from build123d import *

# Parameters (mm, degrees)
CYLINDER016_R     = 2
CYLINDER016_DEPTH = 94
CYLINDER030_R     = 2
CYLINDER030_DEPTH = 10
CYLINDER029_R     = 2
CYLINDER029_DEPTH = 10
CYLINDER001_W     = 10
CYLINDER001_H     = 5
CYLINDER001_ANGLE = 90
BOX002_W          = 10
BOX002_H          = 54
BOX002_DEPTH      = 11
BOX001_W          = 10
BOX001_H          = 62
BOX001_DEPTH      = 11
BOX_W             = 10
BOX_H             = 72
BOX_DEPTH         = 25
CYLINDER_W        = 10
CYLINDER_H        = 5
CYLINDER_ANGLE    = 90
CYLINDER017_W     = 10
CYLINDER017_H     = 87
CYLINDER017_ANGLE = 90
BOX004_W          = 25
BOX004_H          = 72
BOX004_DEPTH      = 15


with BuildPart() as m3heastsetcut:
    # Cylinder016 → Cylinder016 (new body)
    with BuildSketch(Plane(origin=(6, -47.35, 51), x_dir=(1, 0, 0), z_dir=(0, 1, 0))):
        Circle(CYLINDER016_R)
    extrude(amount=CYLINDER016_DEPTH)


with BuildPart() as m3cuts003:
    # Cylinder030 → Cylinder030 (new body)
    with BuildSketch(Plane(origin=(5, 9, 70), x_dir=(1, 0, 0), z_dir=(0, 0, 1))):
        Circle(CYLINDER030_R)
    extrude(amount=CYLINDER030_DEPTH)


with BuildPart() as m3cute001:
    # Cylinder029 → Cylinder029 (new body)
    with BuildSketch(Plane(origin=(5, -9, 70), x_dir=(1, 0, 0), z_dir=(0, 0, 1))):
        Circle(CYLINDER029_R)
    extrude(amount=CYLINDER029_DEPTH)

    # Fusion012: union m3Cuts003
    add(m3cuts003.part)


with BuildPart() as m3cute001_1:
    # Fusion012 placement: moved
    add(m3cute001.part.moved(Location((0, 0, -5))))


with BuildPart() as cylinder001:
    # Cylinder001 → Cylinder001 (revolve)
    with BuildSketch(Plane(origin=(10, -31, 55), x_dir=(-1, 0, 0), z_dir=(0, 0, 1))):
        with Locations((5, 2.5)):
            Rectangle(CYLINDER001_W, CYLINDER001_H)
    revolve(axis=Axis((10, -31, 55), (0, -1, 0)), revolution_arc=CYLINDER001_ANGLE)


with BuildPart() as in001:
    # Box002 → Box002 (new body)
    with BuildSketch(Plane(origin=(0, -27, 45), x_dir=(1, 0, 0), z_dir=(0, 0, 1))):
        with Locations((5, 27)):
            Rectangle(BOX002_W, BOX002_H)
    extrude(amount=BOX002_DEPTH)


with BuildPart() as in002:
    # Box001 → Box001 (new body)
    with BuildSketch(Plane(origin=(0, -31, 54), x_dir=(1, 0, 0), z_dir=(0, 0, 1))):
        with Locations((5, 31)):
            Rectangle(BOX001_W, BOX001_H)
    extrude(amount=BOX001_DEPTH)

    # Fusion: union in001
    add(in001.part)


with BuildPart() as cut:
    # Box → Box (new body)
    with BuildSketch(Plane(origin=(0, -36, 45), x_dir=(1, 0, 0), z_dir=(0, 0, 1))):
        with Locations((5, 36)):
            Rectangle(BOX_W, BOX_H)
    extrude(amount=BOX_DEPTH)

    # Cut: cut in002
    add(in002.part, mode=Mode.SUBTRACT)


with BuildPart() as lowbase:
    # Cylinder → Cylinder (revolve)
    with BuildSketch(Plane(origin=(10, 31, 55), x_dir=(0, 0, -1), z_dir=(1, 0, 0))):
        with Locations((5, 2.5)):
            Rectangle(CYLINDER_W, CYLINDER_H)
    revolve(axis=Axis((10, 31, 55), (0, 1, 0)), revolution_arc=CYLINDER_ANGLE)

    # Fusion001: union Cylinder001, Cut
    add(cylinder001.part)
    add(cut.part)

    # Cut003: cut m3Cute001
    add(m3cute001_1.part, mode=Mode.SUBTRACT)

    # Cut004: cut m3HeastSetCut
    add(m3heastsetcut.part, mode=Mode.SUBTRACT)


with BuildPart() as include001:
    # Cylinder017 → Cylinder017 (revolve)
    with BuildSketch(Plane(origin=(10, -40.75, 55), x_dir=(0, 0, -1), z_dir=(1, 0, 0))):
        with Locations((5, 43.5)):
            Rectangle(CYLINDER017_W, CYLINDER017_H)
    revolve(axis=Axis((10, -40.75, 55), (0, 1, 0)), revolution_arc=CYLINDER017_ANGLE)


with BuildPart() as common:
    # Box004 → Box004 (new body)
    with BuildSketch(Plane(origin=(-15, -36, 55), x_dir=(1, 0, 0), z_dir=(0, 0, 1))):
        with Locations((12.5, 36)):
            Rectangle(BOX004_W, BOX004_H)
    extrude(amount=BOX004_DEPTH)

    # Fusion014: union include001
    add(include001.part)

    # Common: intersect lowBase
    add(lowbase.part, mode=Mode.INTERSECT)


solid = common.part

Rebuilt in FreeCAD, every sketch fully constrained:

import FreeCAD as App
import Part
import Sketcher

V = App.Vector

doc = App.newDocument("Part")
params = doc.addObject("Spreadsheet::Sheet", "Params")
for row, (alias, value) in enumerate([
    ("sketch1_diameter", "4 mm"),
    ("pad1_length", "94 mm"),
    ("sketch2_diameter", "4 mm"),
    ("pad2_length", "10 mm"),
    ("sketch3_diameter", "4 mm"),
    ("pad3_length", "10 mm"),
    ("sketch4_width", "10 mm"),
    ("sketch4_height", "5 mm"),
    ("revolution_angle", "90 deg"),
    ("sketch5_width", "10 mm"),
    ("sketch5_height", "54 mm"),
    ("pad4_length", "11 mm"),
    ("sketch6_width", "10 mm"),
    ("sketch6_height", "62 mm"),
    ("pad5_length", "11 mm"),
    ("sketch7_width", "10 mm"),
    ("sketch7_height", "72 mm"),
    ("pad6_length", "25 mm"),
    ("sketch8_width", "5 mm"),
    ("sketch8_height", "10 mm"),
    ("revolution2_angle", "90 deg"),
    ("sketch9_width", "87 mm"),
    ("sketch9_height", "10 mm"),
    ("revolution3_angle", "90 deg"),
    ("sketch10_width", "25 mm"),
    ("sketch10_height", "72 mm"),
    ("pad7_length", "15 mm"),
], start=1):
    params.set(f"A{row}", alias)
    params.set(f"B{row}", "=" + value)
    params.setAlias(f"B{row}", alias)

body = doc.addObject("PartDesign::Body", "Body")

sketch1 = body.newObject("Sketcher::SketchObject", "Sketch")
sketch1.AttachmentSupport = (doc.getObject("XZ_Plane"), [""])
sketch1.MapMode = "FlatFace"
sketch1.AttachmentOffset = App.Placement(V(0, 0, 47.35), App.Rotation())
sketch1.addGeometry(Part.Circle(V(6, 51, 0), V(0, 0, 1), 2), False)
sketch1.addConstraint(Sketcher.Constraint("Diameter", 0, 4.0))
sketch1.addConstraint(Sketcher.Constraint("DistanceX", -1, 1, 0, 3, 6.0))
sketch1.addConstraint(Sketcher.Constraint("DistanceY", -1, 1, 0, 3, 51.0))
sketch1.setExpression("Constraints[0]", "Params.sketch1_diameter")
pad1 = body.newObject("PartDesign::Pad", "Pad")
pad1.Profile = sketch1
pad1.setExpression("Length", "Params.pad1_length")
pad1.Reversed = True
body2 = doc.addObject("PartDesign::Body", "Body001")

sketch2 = body2.newObject("Sketcher::SketchObject", "Sketch001")
sketch2.AttachmentSupport = (doc.getObject("XY_Plane001"), [""])
sketch2.MapMode = "FlatFace"
sketch2.AttachmentOffset = App.Placement(V(0, 0, 70), App.Rotation())
sketch2.addGeometry(Part.Circle(V(5, 9, 0), V(0, 0, 1), 2), False)
sketch2.addConstraint(Sketcher.Constraint("Diameter", 0, 4.0))
sketch2.addConstraint(Sketcher.Constraint("DistanceX", -1, 1, 0, 3, 5.0))
sketch2.addConstraint(Sketcher.Constraint("DistanceY", -1, 1, 0, 3, 9.0))
sketch2.setExpression("Constraints[0]", "Params.sketch2_diameter")
pad2 = body2.newObject("PartDesign::Pad", "Pad001")
pad2.Profile = sketch2
pad2.setExpression("Length", "Params.pad2_length")
body3 = doc.addObject("PartDesign::Body", "Body002")
body3.AllowCompound = True

sketch3 = body3.newObject("Sketcher::SketchObject", "Sketch002")
sketch3.AttachmentSupport = (doc.getObject("XY_Plane002"), [""])
sketch3.MapMode = "FlatFace"
sketch3.AttachmentOffset = App.Placement(V(0, 0, 70), App.Rotation())
sketch3.addGeometry(Part.Circle(V(5, -9, 0), V(0, 0, 1), 2), False)
sketch3.addConstraint(Sketcher.Constraint("Diameter", 0, 4.0))
sketch3.addConstraint(Sketcher.Constraint("DistanceX", -1, 1, 0, 3, 5.0))
sketch3.addConstraint(Sketcher.Constraint("DistanceY", 0, 3, -1, 1, 9.0))
sketch3.setExpression("Constraints[0]", "Params.sketch3_diameter")
pad3 = body3.newObject("PartDesign::Pad", "Pad002")
pad3.Profile = sketch3
pad3.setExpression("Length", "Params.pad3_length")
doc.recompute()

boolean = body3.newObject("PartDesign::Boolean", "Boolean")
boolean.Type = "Fuse"
boolean.addObjects([body2])
body4 = doc.addObject("PartDesign::Body", "Body003")
body4.AllowCompound = True
doc.recompute()

body3.Placement = App.Placement(V(0, 0, -5), App.Rotation(V(0, 0, 1), 0))
boolean2 = body4.newObject("PartDesign::Boolean", "Boolean001")
boolean2.Type = "Fuse"
boolean2.addObjects([body3])
body5 = doc.addObject("PartDesign::Body", "Body004")

sketch4 = body5.newObject("Sketcher::SketchObject", "Sketch003")
sketch4.AttachmentSupport = (doc.getObject("XY_Plane004"), [""])
sketch4.MapMode = "FlatFace"
sketch4.AttachmentOffset = App.Placement(V(0, 0, 55), App.Rotation())
sketch4.addGeometry(Part.LineSegment(V(10, -36, 0), V(10, -31, 0)), False)
sketch4.addGeometry(Part.LineSegment(V(10, -31, 0), V(0, -31, 0)), False)
sketch4.addGeometry(Part.LineSegment(V(0, -31, 0), V(0, -36, 0)), False)
sketch4.addGeometry(Part.LineSegment(V(0, -36, 0), V(10, -36, 0)), False)
sketch4.addGeometry(Part.LineSegment(V(10, -31, 0), V(10, -36, 0)), True)
sketch4.addConstraint(Sketcher.Constraint("Coincident", 0, 2, 1, 1))
sketch4.addConstraint(Sketcher.Constraint("Coincident", 1, 2, 2, 1))
sketch4.addConstraint(Sketcher.Constraint("Coincident", 2, 2, 3, 1))
sketch4.addConstraint(Sketcher.Constraint("Coincident", 3, 2, 0, 1))
sketch4.addConstraint(Sketcher.Constraint("Vertical", 0))
sketch4.addConstraint(Sketcher.Constraint("Horizontal", 1))
sketch4.addConstraint(Sketcher.Constraint("Vertical", 2))
sketch4.addConstraint(Sketcher.Constraint("Horizontal", 3))
sketch4.addConstraint(Sketcher.Constraint("Vertical", 4))
sketch4.addConstraint(Sketcher.Constraint("Coincident", 4, 1, 0, 2))
sketch4.addConstraint(Sketcher.Constraint("PointOnObject", 1, 2, -2))
sketch4.addConstraint(Sketcher.Constraint("Horizontal", 2, 2, 4, 2))
sketch4.addConstraint(Sketcher.Constraint("DistanceX", 1, 2, 1, 1, 10.0))
sketch4.addConstraint(Sketcher.Constraint("DistanceY", 0, 1, 0, 2, 5.0))
sketch4.addConstraint(Sketcher.Constraint("DistanceY", 0, 2, -1, 1, 31.0))
sketch4.setExpression("Constraints[12]", "Params.sketch4_width")
sketch4.setExpression("Constraints[13]", "Params.sketch4_height")
revolution = body5.newObject("PartDesign::Revolution", "Revolution")
revolution.Profile = sketch4
revolution.ReferenceAxis = (sketch4, ["Axis0"])
revolution.setExpression("Angle", "Params.revolution_angle")
body6 = doc.addObject("PartDesign::Body", "Body005")

sketch5 = body6.newObject("Sketcher::SketchObject", "Sketch004")
sketch5.AttachmentSupport = (doc.getObject("XY_Plane005"), [""])
sketch5.MapMode = "FlatFace"
sketch5.AttachmentOffset = App.Placement(V(0, 0, 45), App.Rotation())
sketch5.addGeometry(Part.LineSegment(V(0, 27, 0), V(0, -27, 0)), False)
sketch5.addGeometry(Part.LineSegment(V(0, -27, 0), V(10, -27, 0)), False)
sketch5.addGeometry(Part.LineSegment(V(10, -27, 0), V(10, 27, 0)), False)
sketch5.addGeometry(Part.LineSegment(V(10, 27, 0), V(0, 27, 0)), False)
sketch5.addConstraint(Sketcher.Constraint("Coincident", 0, 2, 1, 1))
sketch5.addConstraint(Sketcher.Constraint("Coincident", 1, 2, 2, 1))
sketch5.addConstraint(Sketcher.Constraint("Coincident", 2, 2, 3, 1))
sketch5.addConstraint(Sketcher.Constraint("Coincident", 3, 2, 0, 1))
sketch5.addConstraint(Sketcher.Constraint("Vertical", 0))
sketch5.addConstraint(Sketcher.Constraint("Horizontal", 1))
sketch5.addConstraint(Sketcher.Constraint("Vertical", 2))
sketch5.addConstraint(Sketcher.Constraint("Horizontal", 3))
sketch5.addConstraint(Sketcher.Constraint("Symmetric", 0, 2, 3, 2, -1, 1))
sketch5.addConstraint(Sketcher.Constraint("DistanceX", 1, 1, 1, 2, 10.0))
sketch5.addConstraint(Sketcher.Constraint("DistanceY", 0, 2, 0, 1, 54.0))
sketch5.setExpression("Constraints[9]", "Params.sketch5_width")
sketch5.setExpression("Constraints[10]", "Params.sketch5_height")
pad4 = body6.newObject("PartDesign::Pad", "Pad003")
pad4.Profile = sketch5
pad4.setExpression("Length", "Params.pad4_length")
body7 = doc.addObject("PartDesign::Body", "Body006")

sketch6 = body7.newObject("Sketcher::SketchObject", "Sketch005")
sketch6.AttachmentSupport = (doc.getObject("XY_Plane006"), [""])
sketch6.MapMode = "FlatFace"
sketch6.AttachmentOffset = App.Placement(V(0, 0, 54), App.Rotation())
sketch6.addGeometry(Part.LineSegment(V(0, 31, 0), V(0, -31, 0)), False)
sketch6.addGeometry(Part.LineSegment(V(0, -31, 0), V(10, -31, 0)), False)
sketch6.addGeometry(Part.LineSegment(V(10, -31, 0), V(10, 31, 0)), False)
sketch6.addGeometry(Part.LineSegment(V(10, 31, 0), V(0, 31, 0)), False)
sketch6.addConstraint(Sketcher.Constraint("Coincident", 0, 2, 1, 1))
sketch6.addConstraint(Sketcher.Constraint("Coincident", 1, 2, 2, 1))
sketch6.addConstraint(Sketcher.Constraint("Coincident", 2, 2, 3, 1))
sketch6.addConstraint(Sketcher.Constraint("Coincident", 3, 2, 0, 1))
sketch6.addConstraint(Sketcher.Constraint("Vertical", 0))
sketch6.addConstraint(Sketcher.Constraint("Horizontal", 1))
sketch6.addConstraint(Sketcher.Constraint("Vertical", 2))
sketch6.addConstraint(Sketcher.Constraint("Horizontal", 3))
sketch6.addConstraint(Sketcher.Constraint("Symmetric", 0, 2, 3, 2, -1, 1))
sketch6.addConstraint(Sketcher.Constraint("DistanceX", 1, 1, 1, 2, 10.0))
sketch6.addConstraint(Sketcher.Constraint("DistanceY", 0, 2, 0, 1, 62.0))
sketch6.setExpression("Constraints[9]", "Params.sketch6_width")
sketch6.setExpression("Constraints[10]", "Params.sketch6_height")
pad5 = body7.newObject("PartDesign::Pad", "Pad004")
pad5.Profile = sketch6
pad5.setExpression("Length", "Params.pad5_length")
doc.recompute()

boolean3 = body7.newObject("PartDesign::Boolean", "Boolean002")
boolean3.Type = "Fuse"
boolean3.addObjects([body6])
body8 = doc.addObject("PartDesign::Body", "Body007")

sketch7 = body8.newObject("Sketcher::SketchObject", "Sketch006")
sketch7.AttachmentSupport = (doc.getObject("XY_Plane007"), [""])
sketch7.MapMode = "FlatFace"
sketch7.AttachmentOffset = App.Placement(V(0, 0, 45), App.Rotation())
sketch7.addGeometry(Part.LineSegment(V(0, 36, 0), V(0, -36, 0)), False)
sketch7.addGeometry(Part.LineSegment(V(0, -36, 0), V(10, -36, 0)), False)
sketch7.addGeometry(Part.LineSegment(V(10, -36, 0), V(10, 36, 0)), False)
sketch7.addGeometry(Part.LineSegment(V(10, 36, 0), V(0, 36, 0)), False)
sketch7.addConstraint(Sketcher.Constraint("Coincident", 0, 2, 1, 1))
sketch7.addConstraint(Sketcher.Constraint("Coincident", 1, 2, 2, 1))
sketch7.addConstraint(Sketcher.Constraint("Coincident", 2, 2, 3, 1))
sketch7.addConstraint(Sketcher.Constraint("Coincident", 3, 2, 0, 1))
sketch7.addConstraint(Sketcher.Constraint("Vertical", 0))
sketch7.addConstraint(Sketcher.Constraint("Horizontal", 1))
sketch7.addConstraint(Sketcher.Constraint("Vertical", 2))
sketch7.addConstraint(Sketcher.Constraint("Horizontal", 3))
sketch7.addConstraint(Sketcher.Constraint("Symmetric", 0, 2, 3, 2, -1, 1))
sketch7.addConstraint(Sketcher.Constraint("DistanceX", 1, 1, 1, 2, 10.0))
sketch7.addConstraint(Sketcher.Constraint("DistanceY", 0, 2, 0, 1, 72.0))
sketch7.setExpression("Constraints[9]", "Params.sketch7_width")
sketch7.setExpression("Constraints[10]", "Params.sketch7_height")
pad6 = body8.newObject("PartDesign::Pad", "Pad005")
pad6.Profile = sketch7
pad6.setExpression("Length", "Params.pad6_length")
doc.recompute()

boolean4 = body8.newObject("PartDesign::Boolean", "Boolean003")
boolean4.Type = "Cut"
boolean4.addObjects([body7])
body9 = doc.addObject("PartDesign::Body", "Body008")
body9.AllowCompound = True

sketch8 = body9.newObject("Sketcher::SketchObject", "Sketch007")
sketch8.AttachmentSupport = (doc.getObject("YZ_Plane008"), [""])
sketch8.MapMode = "FlatFace"
sketch8.AttachmentOffset = App.Placement(V(0, 0, 10), App.Rotation())
sketch8.addGeometry(Part.LineSegment(V(36, 55, 0), V(31, 55, 0)), False)
sketch8.addGeometry(Part.LineSegment(V(31, 55, 0), V(31, 45, 0)), False)
sketch8.addGeometry(Part.LineSegment(V(31, 45, 0), V(36, 45, 0)), False)
sketch8.addGeometry(Part.LineSegment(V(36, 45, 0), V(36, 55, 0)), False)
sketch8.addGeometry(Part.LineSegment(V(31, 55, 0), V(36, 55, 0)), True)
sketch8.addConstraint(Sketcher.Constraint("Coincident", 0, 2, 1, 1))
sketch8.addConstraint(Sketcher.Constraint("Coincident", 1, 2, 2, 1))
sketch8.addConstraint(Sketcher.Constraint("Coincident", 2, 2, 3, 1))
sketch8.addConstraint(Sketcher.Constraint("Coincident", 3, 2, 0, 1))
sketch8.addConstraint(Sketcher.Constraint("Horizontal", 0))
sketch8.addConstraint(Sketcher.Constraint("Vertical", 1))
sketch8.addConstraint(Sketcher.Constraint("Horizontal", 2))
sketch8.addConstraint(Sketcher.Constraint("Vertical", 3))
sketch8.addConstraint(Sketcher.Constraint("Horizontal", 4))
sketch8.addConstraint(Sketcher.Constraint("Coincident", 4, 1, 0, 2))
sketch8.addConstraint(Sketcher.Constraint("Vertical", 2, 2, 4, 2))
sketch8.addConstraint(Sketcher.Constraint("DistanceX", 0, 2, 0, 1, 5.0))
sketch8.addConstraint(Sketcher.Constraint("DistanceY", 1, 2, 1, 1, 10.0))
sketch8.addConstraint(Sketcher.Constraint("DistanceX", -1, 1, 0, 2, 31.0))
sketch8.addConstraint(Sketcher.Constraint("DistanceY", -1, 1, 0, 2, 55.0))
sketch8.setExpression("Constraints[11]", "Params.sketch8_width")
sketch8.setExpression("Constraints[12]", "Params.sketch8_height")
revolution2 = body9.newObject("PartDesign::Revolution", "Revolution001")
revolution2.Profile = sketch8
revolution2.ReferenceAxis = (sketch8, ["Axis0"])
revolution2.setExpression("Angle", "Params.revolution2_angle")
doc.recompute()

boolean5 = body9.newObject("PartDesign::Boolean", "Boolean004")
boolean5.Type = "Fuse"
boolean5.addObjects([body5])
doc.recompute()

boolean6 = body9.newObject("PartDesign::Boolean", "Boolean005")
boolean6.Type = "Fuse"
boolean6.addObjects([body8])
doc.recompute()

boolean7 = body9.newObject("PartDesign::Boolean", "Boolean006")
boolean7.Type = "Cut"
boolean7.addObjects([body4])
doc.recompute()

boolean8 = body9.newObject("PartDesign::Boolean", "Boolean007")
boolean8.Type = "Cut"
boolean8.addObjects([body])
body10 = doc.addObject("PartDesign::Body", "Body009")

sketch9 = body10.newObject("Sketcher::SketchObject", "Sketch008")
sketch9.AttachmentSupport = (doc.getObject("YZ_Plane009"), [""])
sketch9.MapMode = "FlatFace"
sketch9.AttachmentOffset = App.Placement(V(0, 0, 10), App.Rotation())
sketch9.addGeometry(Part.LineSegment(V(46.25, 55, 0), V(-40.75, 55, 0)), False)
sketch9.addGeometry(Part.LineSegment(V(-40.75, 55, 0), V(-40.75, 45, 0)), False)
sketch9.addGeometry(Part.LineSegment(V(-40.75, 45, 0), V(46.25, 45, 0)), False)
sketch9.addGeometry(Part.LineSegment(V(46.25, 45, 0), V(46.25, 55, 0)), False)
sketch9.addGeometry(Part.LineSegment(V(-40.75, 55, 0), V(46.25, 55, 0)), True)
sketch9.addConstraint(Sketcher.Constraint("Coincident", 0, 2, 1, 1))
sketch9.addConstraint(Sketcher.Constraint("Coincident", 1, 2, 2, 1))
sketch9.addConstraint(Sketcher.Constraint("Coincident", 2, 2, 3, 1))
sketch9.addConstraint(Sketcher.Constraint("Coincident", 3, 2, 0, 1))
sketch9.addConstraint(Sketcher.Constraint("Horizontal", 0))
sketch9.addConstraint(Sketcher.Constraint("Vertical", 1))
sketch9.addConstraint(Sketcher.Constraint("Horizontal", 2))
sketch9.addConstraint(Sketcher.Constraint("Vertical", 3))
sketch9.addConstraint(Sketcher.Constraint("Horizontal", 4))
sketch9.addConstraint(Sketcher.Constraint("Coincident", 4, 1, 0, 2))
sketch9.addConstraint(Sketcher.Constraint("Vertical", 2, 2, 4, 2))
sketch9.addConstraint(Sketcher.Constraint("DistanceX", 0, 2, 0, 1, 87.0))
sketch9.addConstraint(Sketcher.Constraint("DistanceY", 1, 2, 1, 1, 10.0))
sketch9.addConstraint(Sketcher.Constraint("DistanceY", -1, 1, 0, 2, 55.0))
sketch9.addConstraint(Sketcher.Constraint("DistanceX", 0, 2, -1, 1, 40.75))
sketch9.setExpression("Constraints[11]", "Params.sketch9_width")
sketch9.setExpression("Constraints[12]", "Params.sketch9_height")
revolution3 = body10.newObject("PartDesign::Revolution", "Revolution002")
revolution3.Profile = sketch9
revolution3.ReferenceAxis = (sketch9, ["Axis0"])
revolution3.setExpression("Angle", "Params.revolution3_angle")
body11 = doc.addObject("PartDesign::Body", "Body010")

sketch10 = body11.newObject("Sketcher::SketchObject", "Sketch009")
sketch10.AttachmentSupport = (doc.getObject("XY_Plane010"), [""])
sketch10.MapMode = "FlatFace"
sketch10.AttachmentOffset = App.Placement(V(0, 0, 55), App.Rotation())
sketch10.addGeometry(Part.LineSegment(V(-15, 36, 0), V(-15, -36, 0)), False)
sketch10.addGeometry(Part.LineSegment(V(-15, -36, 0), V(10, -36, 0)), False)
sketch10.addGeometry(Part.LineSegment(V(10, -36, 0), V(10, 36, 0)), False)
sketch10.addGeometry(Part.LineSegment(V(10, 36, 0), V(-15, 36, 0)), False)
sketch10.addConstraint(Sketcher.Constraint("Coincident", 0, 2, 1, 1))
sketch10.addConstraint(Sketcher.Constraint("Coincident", 1, 2, 2, 1))
sketch10.addConstraint(Sketcher.Constraint("Coincident", 2, 2, 3, 1))
sketch10.addConstraint(Sketcher.Constraint("Coincident", 3, 2, 0, 1))
sketch10.addConstraint(Sketcher.Constraint("Vertical", 0))
sketch10.addConstraint(Sketcher.Constraint("Horizontal", 1))
sketch10.addConstraint(Sketcher.Constraint("Vertical", 2))
sketch10.addConstraint(Sketcher.Constraint("Horizontal", 3))
sketch10.addConstraint(Sketcher.Constraint("DistanceX", 1, 1, 1, 2, 25.0))
sketch10.addConstraint(Sketcher.Constraint("DistanceY", 0, 2, 0, 1, 72.0))
sketch10.addConstraint(Sketcher.Constraint("DistanceX", 0, 2, -1, 1, 15.0))
sketch10.addConstraint(Sketcher.Constraint("DistanceY", 0, 2, -1, 1, 36.0))
sketch10.setExpression("Constraints[8]", "Params.sketch10_width")
sketch10.setExpression("Constraints[9]", "Params.sketch10_height")
pad7 = body11.newObject("PartDesign::Pad", "Pad006")
pad7.Profile = sketch10
pad7.setExpression("Length", "Params.pad7_length")
doc.recompute()

boolean9 = body11.newObject("PartDesign::Boolean", "Boolean008")
boolean9.Type = "Fuse"
boolean9.addObjects([body10])
doc.recompute()

boolean10 = body11.newObject("PartDesign::Boolean", "Boolean009")
boolean10.Type = "Common"
boolean10.addObjects([body9])

doc.recompute()
